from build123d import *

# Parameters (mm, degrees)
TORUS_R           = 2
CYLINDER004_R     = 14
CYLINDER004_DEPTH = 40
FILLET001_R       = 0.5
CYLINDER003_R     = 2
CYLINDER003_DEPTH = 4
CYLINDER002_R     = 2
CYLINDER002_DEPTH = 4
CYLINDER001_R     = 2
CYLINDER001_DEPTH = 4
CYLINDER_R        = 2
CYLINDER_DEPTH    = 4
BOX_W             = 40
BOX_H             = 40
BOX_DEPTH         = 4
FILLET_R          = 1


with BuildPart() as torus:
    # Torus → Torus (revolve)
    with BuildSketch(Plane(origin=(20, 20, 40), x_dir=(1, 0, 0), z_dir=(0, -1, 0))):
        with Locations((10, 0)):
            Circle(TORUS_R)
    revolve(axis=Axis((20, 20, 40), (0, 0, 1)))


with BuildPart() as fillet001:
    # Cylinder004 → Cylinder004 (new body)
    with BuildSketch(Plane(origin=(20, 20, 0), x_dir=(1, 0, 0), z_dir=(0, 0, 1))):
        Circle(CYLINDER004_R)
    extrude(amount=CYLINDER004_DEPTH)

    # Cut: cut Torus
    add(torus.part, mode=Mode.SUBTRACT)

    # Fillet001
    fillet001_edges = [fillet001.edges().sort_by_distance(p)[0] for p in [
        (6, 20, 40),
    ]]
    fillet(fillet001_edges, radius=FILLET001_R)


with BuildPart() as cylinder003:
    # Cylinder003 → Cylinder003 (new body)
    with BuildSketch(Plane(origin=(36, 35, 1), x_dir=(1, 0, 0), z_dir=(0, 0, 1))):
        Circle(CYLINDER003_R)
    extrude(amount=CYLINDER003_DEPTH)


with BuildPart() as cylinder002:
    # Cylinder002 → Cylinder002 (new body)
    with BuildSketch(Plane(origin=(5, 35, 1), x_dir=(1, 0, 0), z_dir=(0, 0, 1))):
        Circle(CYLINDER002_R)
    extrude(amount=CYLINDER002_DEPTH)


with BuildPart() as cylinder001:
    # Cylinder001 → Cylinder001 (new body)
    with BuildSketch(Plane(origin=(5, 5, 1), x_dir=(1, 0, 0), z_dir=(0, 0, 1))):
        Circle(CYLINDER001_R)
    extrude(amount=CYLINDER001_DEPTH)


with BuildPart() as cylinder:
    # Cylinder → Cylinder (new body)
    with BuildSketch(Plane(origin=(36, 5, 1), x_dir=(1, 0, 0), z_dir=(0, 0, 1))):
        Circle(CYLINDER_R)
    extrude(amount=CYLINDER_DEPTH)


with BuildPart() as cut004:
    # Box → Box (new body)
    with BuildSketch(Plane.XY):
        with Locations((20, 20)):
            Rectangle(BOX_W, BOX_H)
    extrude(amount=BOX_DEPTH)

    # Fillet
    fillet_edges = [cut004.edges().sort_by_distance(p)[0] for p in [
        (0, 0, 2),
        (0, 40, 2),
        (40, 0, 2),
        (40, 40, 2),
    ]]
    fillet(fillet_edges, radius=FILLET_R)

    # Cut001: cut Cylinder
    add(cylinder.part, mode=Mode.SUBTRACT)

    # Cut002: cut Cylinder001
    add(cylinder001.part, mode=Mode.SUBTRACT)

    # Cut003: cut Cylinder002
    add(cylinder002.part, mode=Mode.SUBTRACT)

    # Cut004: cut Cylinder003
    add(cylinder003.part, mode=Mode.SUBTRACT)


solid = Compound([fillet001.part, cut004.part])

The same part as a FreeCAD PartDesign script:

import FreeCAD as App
import Part
import Sketcher

V = App.Vector
Q = App.Units.Quantity


def edges_at(feature, points):
    """Names of the edges that pass closest to the given points."""
    edges = feature.Shape.Edges
    near = lambda p: min(range(len(edges)), key=lambda i: edges[i].distToShape(Part.Vertex(*p))[0])
    return sorted({f"Edge{near(p) + 1}" for p in points})

doc = App.newDocument("Part")
params = doc.addObject("Spreadsheet::Sheet", "Params")
for row, (alias, value) in enumerate([
    ("sketch1_diameter", "4 mm"),
    ("sketch1_height", "10 mm"),
    ("revolution_angle", "360 deg"),
    ("sketch2_diameter", "28 mm"),
    ("pad1_length", "40 mm"),
    ("fillet_radius", "0.5 mm"),
    ("sketch3_diameter", "4 mm"),
    ("pad2_length", "4 mm"),
    ("sketch4_diameter", "4 mm"),
    ("pad3_length", "4 mm"),
    ("sketch5_diameter", "4 mm"),
    ("pad4_length", "4 mm"),
    ("sketch6_diameter", "4 mm"),
    ("pad5_length", "4 mm"),
    ("sketch7_width", "40 mm"),
    ("pad6_length", "4 mm"),
    ("fillet2_radius", "1 mm"),
], start=1):
    params.set(f"A{row}", alias)
    params.set(f"B{row}", "=" + value)
    params.setAlias(f"B{row}", alias)

body = doc.addObject("PartDesign::Body", "Body")

# Sketch on XZ plane
sketch1 = doc.addObject("Sketcher::SketchObject", "Sketch")
body.addObject(sketch1)
sketch1.AttachmentSupport = (doc.XZ_Plane, [""])
sketch1.MapMode = "FlatFace"
sketch1.AttachmentOffset = App.Placement(V(0, 0, -20), App.Rotation())
sketch1.addGeometry(Part.Circle(V(30, 40, 0), V(0, 0, 1), 2), False)
sketch1.addGeometry(Part.LineSegment(V(20, 40, 0), V(20, 50, 0)), True)  # axis
sketch1.addConstraint(Sketcher.Constraint("Vertical", 1))
sketch1.addConstraint(Sketcher.Constraint("Horizontal", 0, 3, 1, 1))
sketch1.addConstraint(Sketcher.Constraint("Diameter", 0, Q("4 mm")))
sketch1.addConstraint(Sketcher.Constraint("DistanceY", 1, 1, 1, 2, Q("10 mm")))
sketch1.addConstraint(Sketcher.Constraint("DistanceX", -1, 1, 0, 3, Q("30 mm")))
sketch1.addConstraint(Sketcher.Constraint("DistanceY", -1, 1, 0, 3, Q("40 mm")))
sketch1.addConstraint(Sketcher.Constraint("DistanceX", -1, 1, 1, 1, Q("20 mm")))
sketch1.setExpression("Constraints[2]", "Params.sketch1_diameter")
sketch1.setExpression("Constraints[3]", "Params.sketch1_height")
revolution = doc.addObject("PartDesign::Revolution", "Revolution")
body.addObject(revolution)
revolution.Profile = sketch1
revolution.ReferenceAxis = (sketch1, ["Axis0"])
revolution.setExpression("Angle", "Params.revolution_angle")
body2 = doc.addObject("PartDesign::Body", "Body001")

# Sketch on XY plane
sketch2 = doc.addObject("Sketcher::SketchObject", "Sketch001")
body2.addObject(sketch2)
sketch2.AttachmentSupport = (doc.getObject("XY_Plane001"), [""])
sketch2.MapMode = "FlatFace"
sketch2.addGeometry(Part.Circle(V(20, 20, 0), V(0, 0, 1), 14), False)
sketch2.addConstraint(Sketcher.Constraint("Diameter", 0, Q("28 mm")))
sketch2.addConstraint(Sketcher.Constraint("DistanceX", -1, 1, 0, 3, Q("20 mm")))
sketch2.addConstraint(Sketcher.Constraint("DistanceY", -1, 1, 0, 3, Q("20 mm")))
sketch2.setExpression("Constraints[0]", "Params.sketch2_diameter")
pad1 = doc.addObject("PartDesign::Pad", "Pad")
body2.addObject(pad1)
pad1.Profile = sketch2
pad1.setExpression("Length", "Params.pad1_length")
doc.recompute()

boolean = doc.addObject("PartDesign::Boolean", "Boolean")
body2.addObject(boolean)
boolean.Type = "Cut"
boolean.addObjects([body])
doc.recompute()

fillet = doc.addObject("PartDesign::Fillet", "Fillet")
body2.addObject(fillet)
fillet.Base = (boolean, edges_at(boolean, [(6, 20, 40)]))
fillet.setExpression("Radius", "Params.fillet_radius")
body3 = doc.addObject("PartDesign::Body", "Body002")

# Sketch on XY plane
sketch3 = doc.addObject("Sketcher::SketchObject", "Sketch002")
body3.addObject(sketch3)
sketch3.AttachmentSupport = (doc.getObject("XY_Plane002"), [""])
sketch3.MapMode = "FlatFace"
sketch3.AttachmentOffset = App.Placement(V(0, 0, 1), App.Rotation())
sketch3.addGeometry(Part.Circle(V(36, 35, 0), V(0, 0, 1), 2), False)
sketch3.addConstraint(Sketcher.Constraint("Diameter", 0, Q("4 mm")))
sketch3.addConstraint(Sketcher.Constraint("DistanceX", -1, 1, 0, 3, Q("36 mm")))
sketch3.addConstraint(Sketcher.Constraint("DistanceY", -1, 1, 0, 3, Q("35 mm")))
sketch3.setExpression("Constraints[0]", "Params.sketch3_diameter")
pad2 = doc.addObject("PartDesign::Pad", "Pad001")
body3.addObject(pad2)
pad2.Profile = sketch3
pad2.setExpression("Length", "Params.pad2_length")
body4 = doc.addObject("PartDesign::Body", "Body003")

# Sketch on XY plane
sketch4 = doc.addObject("Sketcher::SketchObject", "Sketch003")
body4.addObject(sketch4)
sketch4.AttachmentSupport = (doc.getObject("XY_Plane003"), [""])
sketch4.MapMode = "FlatFace"
sketch4.AttachmentOffset = App.Placement(V(0, 0, 1), App.Rotation())
sketch4.addGeometry(Part.Circle(V(5, 35, 0), V(0, 0, 1), 2), False)
sketch4.addConstraint(Sketcher.Constraint("Diameter", 0, Q("4 mm")))
sketch4.addConstraint(Sketcher.Constraint("DistanceX", -1, 1, 0, 3, Q("5 mm")))
sketch4.addConstraint(Sketcher.Constraint("DistanceY", -1, 1, 0, 3, Q("35 mm")))
sketch4.setExpression("Constraints[0]", "Params.sketch4_diameter")
pad3 = doc.addObject("PartDesign::Pad", "Pad002")
body4.addObject(pad3)
pad3.Profile = sketch4
pad3.setExpression("Length", "Params.pad3_length")
body5 = doc.addObject("PartDesign::Body", "Body004")

# Sketch on XY plane
sketch5 = doc.addObject("Sketcher::SketchObject", "Sketch004")
body5.addObject(sketch5)
sketch5.AttachmentSupport = (doc.getObject("XY_Plane004"), [""])
sketch5.MapMode = "FlatFace"
sketch5.AttachmentOffset = App.Placement(V(0, 0, 1), App.Rotation())
sketch5.addGeometry(Part.Circle(V(5, 5, 0), V(0, 0, 1), 2), False)
sketch5.addConstraint(Sketcher.Constraint("Diameter", 0, Q("4 mm")))
sketch5.addConstraint(Sketcher.Constraint("DistanceX", -1, 1, 0, 3, Q("5 mm")))
sketch5.addConstraint(Sketcher.Constraint("DistanceY", -1, 1, 0, 3, Q("5 mm")))
sketch5.setExpression("Constraints[0]", "Params.sketch5_diameter")
pad4 = doc.addObject("PartDesign::Pad", "Pad003")
body5.addObject(pad4)
pad4.Profile = sketch5
pad4.setExpression("Length", "Params.pad4_length")
body6 = doc.addObject("PartDesign::Body", "Body005")

# Sketch on XY plane
sketch6 = doc.addObject("Sketcher::SketchObject", "Sketch005")
body6.addObject(sketch6)
sketch6.AttachmentSupport = (doc.getObject("XY_Plane005"), [""])
sketch6.MapMode = "FlatFace"
sketch6.AttachmentOffset = App.Placement(V(0, 0, 1), App.Rotation())
sketch6.addGeometry(Part.Circle(V(36, 5, 0), V(0, 0, 1), 2), False)
sketch6.addConstraint(Sketcher.Constraint("Diameter", 0, Q("4 mm")))
sketch6.addConstraint(Sketcher.Constraint("DistanceX", -1, 1, 0, 3, Q("36 mm")))
sketch6.addConstraint(Sketcher.Constraint("DistanceY", -1, 1, 0, 3, Q("5 mm")))
sketch6.setExpression("Constraints[0]", "Params.sketch6_diameter")
pad5 = doc.addObject("PartDesign::Pad", "Pad004")
body6.addObject(pad5)
pad5.Profile = sketch6
pad5.setExpression("Length", "Params.pad5_length")
body7 = doc.addObject("PartDesign::Body", "Body006")

# Sketch on XY plane
sketch7 = doc.addObject("Sketcher::SketchObject", "Sketch006")
body7.addObject(sketch7)
sketch7.AttachmentSupport = (doc.getObject("XY_Plane006"), [""])
sketch7.MapMode = "FlatFace"
sketch7.addGeometry(Part.LineSegment(V(0, 40, 0), V(0, 0, 0)), False)
sketch7.addGeometry(Part.LineSegment(V(0, 0, 0), V(40, 0, 0)), False)
sketch7.addGeometry(Part.LineSegment(V(40, 0, 0), V(40, 40, 0)), False)
sketch7.addGeometry(Part.LineSegment(V(40, 40, 0), V(0, 40, 0)), False)
sketch7.addConstraint(Sketcher.Constraint("Coincident", 0, 2, 1, 1))
sketch7.addConstraint(Sketcher.Constraint("Coincident", 1, 2, 2, 1))
sketch7.addConstraint(Sketcher.Constraint("Coincident", 2, 2, 3, 1))
sketch7.addConstraint(Sketcher.Constraint("Coincident", 3, 2, 0, 1))
sketch7.addConstraint(Sketcher.Constraint("Vertical", 0))
sketch7.addConstraint(Sketcher.Constraint("Horizontal", 1))
sketch7.addConstraint(Sketcher.Constraint("Vertical", 2))
sketch7.addConstraint(Sketcher.Constraint("Horizontal", 3))
sketch7.addConstraint(Sketcher.Constraint("Coincident", 0, 2, -1, 1))
sketch7.addConstraint(Sketcher.Constraint("Equal", 3, 0))
sketch7.addConstraint(Sketcher.Constraint("DistanceX", 1, 1, 1, 2, Q("40 mm")))
sketch7.setExpression("Constraints[10]", "Params.sketch7_width")
pad6 = doc.addObject("PartDesign::Pad", "Pad005")
body7.addObject(pad6)
pad6.Profile = sketch7
pad6.setExpression("Length", "Params.pad6_length")
doc.recompute()

fillet2 = doc.addObject("PartDesign::Fillet", "Fillet001")
body7.addObject(fillet2)
fillet2.Base = (pad6, edges_at(pad6, [
    (0, 0, 2),
    (0, 40, 2),
    (40, 0, 2),
    (40, 40, 2),
]))
fillet2.setExpression("Radius", "Params.fillet2_radius")
doc.recompute()

boolean2 = doc.addObject("PartDesign::Boolean", "Boolean001")
body7.addObject(boolean2)
boolean2.Type = "Cut"
boolean2.addObjects([body6])
doc.recompute()

boolean3 = doc.addObject("PartDesign::Boolean", "Boolean002")
body7.addObject(boolean3)
boolean3.Type = "Cut"
boolean3.addObjects([body5])
doc.recompute()

boolean4 = doc.addObject("PartDesign::Boolean", "Boolean003")
body7.addObject(boolean4)
boolean4.Type = "Cut"
boolean4.addObjects([body4])
doc.recompute()

boolean5 = doc.addObject("PartDesign::Boolean", "Boolean004")
body7.addObject(boolean5)
boolean5.Type = "Cut"
boolean5.addObjects([body3])

doc.recompute()
